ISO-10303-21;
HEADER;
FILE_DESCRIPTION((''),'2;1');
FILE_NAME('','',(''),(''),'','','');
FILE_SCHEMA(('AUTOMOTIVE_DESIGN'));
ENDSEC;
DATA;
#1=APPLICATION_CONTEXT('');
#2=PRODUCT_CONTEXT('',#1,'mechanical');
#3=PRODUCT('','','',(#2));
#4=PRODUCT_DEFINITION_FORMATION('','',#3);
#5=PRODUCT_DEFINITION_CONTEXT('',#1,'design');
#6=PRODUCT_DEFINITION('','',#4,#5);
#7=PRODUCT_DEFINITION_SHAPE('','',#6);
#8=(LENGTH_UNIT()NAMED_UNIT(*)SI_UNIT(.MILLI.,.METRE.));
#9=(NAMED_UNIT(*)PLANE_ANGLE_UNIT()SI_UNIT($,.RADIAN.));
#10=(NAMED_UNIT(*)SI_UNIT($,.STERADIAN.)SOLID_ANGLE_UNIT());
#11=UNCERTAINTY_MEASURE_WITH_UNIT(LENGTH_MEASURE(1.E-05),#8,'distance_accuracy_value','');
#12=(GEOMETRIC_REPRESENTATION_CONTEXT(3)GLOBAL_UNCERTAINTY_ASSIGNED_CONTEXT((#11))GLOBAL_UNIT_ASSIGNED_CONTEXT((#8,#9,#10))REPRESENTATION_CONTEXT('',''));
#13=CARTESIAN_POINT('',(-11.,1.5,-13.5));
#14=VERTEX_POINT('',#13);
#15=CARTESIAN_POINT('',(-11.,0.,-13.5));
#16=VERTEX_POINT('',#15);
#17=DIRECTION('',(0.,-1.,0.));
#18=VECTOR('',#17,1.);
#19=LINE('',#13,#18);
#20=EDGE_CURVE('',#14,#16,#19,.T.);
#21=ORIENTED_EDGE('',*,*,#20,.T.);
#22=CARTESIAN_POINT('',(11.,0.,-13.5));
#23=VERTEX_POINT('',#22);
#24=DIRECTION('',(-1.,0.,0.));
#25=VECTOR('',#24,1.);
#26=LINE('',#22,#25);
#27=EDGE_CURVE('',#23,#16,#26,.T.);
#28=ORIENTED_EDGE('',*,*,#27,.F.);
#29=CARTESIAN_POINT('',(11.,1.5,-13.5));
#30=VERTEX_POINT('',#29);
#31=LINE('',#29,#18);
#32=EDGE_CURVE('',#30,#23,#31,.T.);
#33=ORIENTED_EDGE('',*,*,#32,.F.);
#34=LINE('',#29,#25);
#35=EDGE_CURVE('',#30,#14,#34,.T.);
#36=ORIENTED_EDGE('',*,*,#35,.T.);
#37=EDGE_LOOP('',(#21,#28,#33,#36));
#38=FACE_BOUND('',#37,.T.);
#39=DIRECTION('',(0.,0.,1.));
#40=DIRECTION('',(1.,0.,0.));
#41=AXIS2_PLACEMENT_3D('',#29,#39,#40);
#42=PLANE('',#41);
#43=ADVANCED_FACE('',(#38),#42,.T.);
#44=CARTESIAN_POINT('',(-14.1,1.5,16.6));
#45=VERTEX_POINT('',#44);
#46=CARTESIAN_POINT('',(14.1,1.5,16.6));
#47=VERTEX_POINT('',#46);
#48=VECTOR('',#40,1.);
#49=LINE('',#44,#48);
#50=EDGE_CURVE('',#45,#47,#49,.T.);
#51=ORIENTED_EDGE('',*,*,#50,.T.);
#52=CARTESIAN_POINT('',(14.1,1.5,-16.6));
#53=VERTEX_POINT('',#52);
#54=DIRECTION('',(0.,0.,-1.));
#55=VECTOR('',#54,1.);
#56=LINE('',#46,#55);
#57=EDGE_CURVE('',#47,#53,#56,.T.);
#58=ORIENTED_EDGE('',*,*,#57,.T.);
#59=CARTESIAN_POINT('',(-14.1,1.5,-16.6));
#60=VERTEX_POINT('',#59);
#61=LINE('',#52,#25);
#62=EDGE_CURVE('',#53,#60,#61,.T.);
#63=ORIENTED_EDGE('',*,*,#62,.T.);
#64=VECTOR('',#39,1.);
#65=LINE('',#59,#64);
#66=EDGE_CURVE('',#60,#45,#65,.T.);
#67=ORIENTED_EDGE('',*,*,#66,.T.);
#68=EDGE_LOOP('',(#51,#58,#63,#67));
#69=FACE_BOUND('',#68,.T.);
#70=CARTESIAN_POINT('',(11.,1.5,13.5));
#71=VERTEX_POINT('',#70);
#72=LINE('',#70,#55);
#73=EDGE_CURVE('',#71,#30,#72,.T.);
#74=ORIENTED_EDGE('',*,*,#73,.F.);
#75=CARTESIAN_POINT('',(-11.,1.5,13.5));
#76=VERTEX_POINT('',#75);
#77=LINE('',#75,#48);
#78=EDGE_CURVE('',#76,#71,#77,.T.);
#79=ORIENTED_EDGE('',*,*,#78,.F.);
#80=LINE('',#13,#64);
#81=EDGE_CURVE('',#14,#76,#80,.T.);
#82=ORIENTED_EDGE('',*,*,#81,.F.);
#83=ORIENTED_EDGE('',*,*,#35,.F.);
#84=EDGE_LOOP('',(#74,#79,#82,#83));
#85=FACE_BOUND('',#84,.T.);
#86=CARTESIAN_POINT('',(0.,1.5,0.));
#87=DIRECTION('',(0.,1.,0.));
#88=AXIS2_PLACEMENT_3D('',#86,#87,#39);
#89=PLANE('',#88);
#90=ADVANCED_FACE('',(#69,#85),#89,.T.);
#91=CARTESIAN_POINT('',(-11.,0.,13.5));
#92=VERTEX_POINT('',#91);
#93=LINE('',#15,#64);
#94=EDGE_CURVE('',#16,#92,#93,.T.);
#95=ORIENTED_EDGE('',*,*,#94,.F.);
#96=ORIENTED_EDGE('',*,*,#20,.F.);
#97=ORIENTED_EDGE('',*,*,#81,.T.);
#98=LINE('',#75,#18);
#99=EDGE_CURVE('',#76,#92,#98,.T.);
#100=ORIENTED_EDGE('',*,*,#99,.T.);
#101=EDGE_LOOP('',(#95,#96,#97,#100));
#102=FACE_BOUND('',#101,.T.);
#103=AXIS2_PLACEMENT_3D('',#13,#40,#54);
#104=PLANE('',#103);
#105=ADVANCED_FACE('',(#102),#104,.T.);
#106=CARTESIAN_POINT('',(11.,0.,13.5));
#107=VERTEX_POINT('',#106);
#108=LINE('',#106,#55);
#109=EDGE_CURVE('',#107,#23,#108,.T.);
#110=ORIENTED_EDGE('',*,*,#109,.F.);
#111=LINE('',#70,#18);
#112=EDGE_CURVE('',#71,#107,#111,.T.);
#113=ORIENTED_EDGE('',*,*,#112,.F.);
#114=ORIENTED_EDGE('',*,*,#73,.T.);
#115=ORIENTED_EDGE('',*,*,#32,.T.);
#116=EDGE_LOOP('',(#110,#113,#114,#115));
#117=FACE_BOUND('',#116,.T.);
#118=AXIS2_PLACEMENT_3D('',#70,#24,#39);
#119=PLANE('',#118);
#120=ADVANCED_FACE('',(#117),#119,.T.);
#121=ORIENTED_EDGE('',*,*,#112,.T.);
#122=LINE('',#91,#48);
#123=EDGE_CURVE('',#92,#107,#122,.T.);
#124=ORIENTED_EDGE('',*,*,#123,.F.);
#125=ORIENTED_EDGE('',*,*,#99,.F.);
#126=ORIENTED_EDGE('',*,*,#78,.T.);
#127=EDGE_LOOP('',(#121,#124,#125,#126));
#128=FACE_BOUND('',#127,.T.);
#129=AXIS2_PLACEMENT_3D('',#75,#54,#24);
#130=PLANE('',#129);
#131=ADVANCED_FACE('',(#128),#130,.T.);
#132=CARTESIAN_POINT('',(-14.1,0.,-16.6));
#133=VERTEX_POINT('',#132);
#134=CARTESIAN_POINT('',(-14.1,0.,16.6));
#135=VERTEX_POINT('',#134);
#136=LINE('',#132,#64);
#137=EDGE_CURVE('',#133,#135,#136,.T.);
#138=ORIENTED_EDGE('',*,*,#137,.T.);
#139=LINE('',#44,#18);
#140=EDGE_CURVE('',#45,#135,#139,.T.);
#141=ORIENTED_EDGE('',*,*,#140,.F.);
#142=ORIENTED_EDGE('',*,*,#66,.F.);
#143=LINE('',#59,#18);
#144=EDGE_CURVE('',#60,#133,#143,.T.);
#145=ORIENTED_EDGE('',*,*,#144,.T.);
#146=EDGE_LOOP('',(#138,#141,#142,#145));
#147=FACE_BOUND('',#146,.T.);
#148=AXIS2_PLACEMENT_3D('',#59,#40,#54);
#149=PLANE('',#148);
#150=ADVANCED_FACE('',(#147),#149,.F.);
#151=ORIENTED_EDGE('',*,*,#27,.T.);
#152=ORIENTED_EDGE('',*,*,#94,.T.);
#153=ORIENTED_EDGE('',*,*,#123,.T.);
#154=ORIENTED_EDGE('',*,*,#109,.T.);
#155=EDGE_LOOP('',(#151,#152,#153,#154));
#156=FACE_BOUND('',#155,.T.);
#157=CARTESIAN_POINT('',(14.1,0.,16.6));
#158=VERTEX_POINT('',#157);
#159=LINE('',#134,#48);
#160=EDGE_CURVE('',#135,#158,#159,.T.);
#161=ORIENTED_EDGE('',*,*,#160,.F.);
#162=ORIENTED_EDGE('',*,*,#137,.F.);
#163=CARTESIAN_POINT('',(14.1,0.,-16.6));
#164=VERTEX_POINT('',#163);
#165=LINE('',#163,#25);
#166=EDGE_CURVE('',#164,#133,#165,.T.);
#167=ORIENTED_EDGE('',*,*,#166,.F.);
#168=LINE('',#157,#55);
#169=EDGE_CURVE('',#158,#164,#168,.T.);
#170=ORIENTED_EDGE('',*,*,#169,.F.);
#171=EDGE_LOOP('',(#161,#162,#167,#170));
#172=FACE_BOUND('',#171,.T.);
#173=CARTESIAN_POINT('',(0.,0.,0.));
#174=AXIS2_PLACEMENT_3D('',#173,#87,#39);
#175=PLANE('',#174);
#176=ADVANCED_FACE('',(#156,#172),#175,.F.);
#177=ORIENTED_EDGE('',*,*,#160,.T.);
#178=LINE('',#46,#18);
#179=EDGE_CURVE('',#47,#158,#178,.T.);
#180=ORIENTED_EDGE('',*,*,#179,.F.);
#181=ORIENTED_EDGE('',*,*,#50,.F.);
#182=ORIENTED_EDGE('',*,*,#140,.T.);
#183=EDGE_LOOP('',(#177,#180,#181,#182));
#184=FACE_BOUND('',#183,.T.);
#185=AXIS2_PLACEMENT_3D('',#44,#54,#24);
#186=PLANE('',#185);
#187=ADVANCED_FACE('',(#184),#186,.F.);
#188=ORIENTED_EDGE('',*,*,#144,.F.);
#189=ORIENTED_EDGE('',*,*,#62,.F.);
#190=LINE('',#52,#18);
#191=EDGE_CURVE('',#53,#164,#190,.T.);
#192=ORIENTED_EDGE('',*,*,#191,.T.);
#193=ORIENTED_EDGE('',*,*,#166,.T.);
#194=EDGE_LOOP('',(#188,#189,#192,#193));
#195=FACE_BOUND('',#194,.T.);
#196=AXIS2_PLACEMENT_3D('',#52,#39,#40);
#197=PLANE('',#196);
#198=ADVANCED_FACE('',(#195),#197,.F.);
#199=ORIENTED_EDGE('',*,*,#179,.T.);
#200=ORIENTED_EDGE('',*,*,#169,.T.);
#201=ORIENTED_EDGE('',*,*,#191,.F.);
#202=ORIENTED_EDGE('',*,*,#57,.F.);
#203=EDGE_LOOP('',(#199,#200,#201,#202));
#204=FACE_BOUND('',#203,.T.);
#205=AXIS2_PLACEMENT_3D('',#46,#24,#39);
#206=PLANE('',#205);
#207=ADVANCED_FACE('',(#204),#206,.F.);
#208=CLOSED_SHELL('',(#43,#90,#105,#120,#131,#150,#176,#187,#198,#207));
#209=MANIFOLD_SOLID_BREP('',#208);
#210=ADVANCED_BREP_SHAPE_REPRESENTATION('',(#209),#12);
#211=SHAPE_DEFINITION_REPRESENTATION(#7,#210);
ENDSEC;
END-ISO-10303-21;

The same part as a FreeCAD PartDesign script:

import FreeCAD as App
import Part
import Sketcher

doc = App.newDocument("Part")
body = doc.addObject("PartDesign::Body", "Body")

sketch1 = body.newObject("Sketcher::SketchObject", "Sketch")
sketch1.AttachmentSupport = (doc.getObject("XZ_Plane"), [""])
sketch1.MapMode = "FlatFace"
sketch1.addGeometry(Part.LineSegment(App.Vector(-14, -17, 0), App.Vector(-14, 17, 0)), False)
sketch1.addGeometry(Part.LineSegment(App.Vector(-14, 17, 0), App.Vector(14, 17, 0)), False)
sketch1.addGeometry(Part.LineSegment(App.Vector(14, 17, 0), App.Vector(14, -17, 0)), False)
sketch1.addGeometry(Part.LineSegment(App.Vector(14, -17, 0), App.Vector(-14, -17, 0)), False)
sketch1.addGeometry(Part.LineSegment(App.Vector(11, 14, 0), App.Vector(-11, 14, 0)), False)
sketch1.addGeometry(Part.LineSegment(App.Vector(-11, 14, 0), App.Vector(-11, -14, 0)), False)
sketch1.addGeometry(Part.LineSegment(App.Vector(-11, -14, 0), App.Vector(11, -14, 0)), False)
sketch1.addGeometry(Part.LineSegment(App.Vector(11, -14, 0), App.Vector(11, 14, 0)), False)
sketch1.addConstraint(Sketcher.Constraint("Coincident", 0, 2, 1, 1))
sketch1.addConstraint(Sketcher.Constraint("Coincident", 1, 2, 2, 1))
sketch1.addConstraint(Sketcher.Constraint("Coincident", 2, 2, 3, 1))
sketch1.addConstraint(Sketcher.Constraint("Coincident", 3, 2, 0, 1))
sketch1.addConstraint(Sketcher.Constraint("Coincident", 4, 2, 5, 1))
sketch1.addConstraint(Sketcher.Constraint("Coincident", 5, 2, 6, 1))
sketch1.addConstraint(Sketcher.Constraint("Coincident", 6, 2, 7, 1))
sketch1.addConstraint(Sketcher.Constraint("Coincident", 7, 2, 4, 1))
sketch1.addConstraint(Sketcher.Constraint("Vertical", 0))
sketch1.addConstraint(Sketcher.Constraint("Horizontal", 1))
sketch1.addConstraint(Sketcher.Constraint("Vertical", 2))
sketch1.addConstraint(Sketcher.Constraint("Horizontal", 3))
sketch1.addConstraint(Sketcher.Constraint("Horizontal", 4))
sketch1.addConstraint(Sketcher.Constraint("Vertical", 5))
sketch1.addConstraint(Sketcher.Constraint("Horizontal", 6))
sketch1.addConstraint(Sketcher.Constraint("Vertical", 7))
sketch1.addConstraint(Sketcher.Constraint("Symmetric", 0, 2, 2, 2, -1, 1))
sketch1.addConstraint(Sketcher.Constraint("Symmetric", 4, 2, 6, 2, -1, 1))
sketch1.addConstraint(Sketcher.Constraint("DistanceX", 4, 2, 4, 1, 22.0))
sketch1.addConstraint(Sketcher.Constraint("DistanceY", 5, 2, 5, 1, 27.0))
sketch1.addConstraint(Sketcher.Constraint("DistanceX", 1, 1, 1, 2, 28.2))
sketch1.addConstraint(Sketcher.Constraint("DistanceY", 0, 1, 0, 2, 33.2))
pad1 = body.newObject("PartDesign::Pad", "Pad")
pad1.Profile = sketch1
pad1.Length = 1.5
pad1.Reversed = True

doc.recompute()
